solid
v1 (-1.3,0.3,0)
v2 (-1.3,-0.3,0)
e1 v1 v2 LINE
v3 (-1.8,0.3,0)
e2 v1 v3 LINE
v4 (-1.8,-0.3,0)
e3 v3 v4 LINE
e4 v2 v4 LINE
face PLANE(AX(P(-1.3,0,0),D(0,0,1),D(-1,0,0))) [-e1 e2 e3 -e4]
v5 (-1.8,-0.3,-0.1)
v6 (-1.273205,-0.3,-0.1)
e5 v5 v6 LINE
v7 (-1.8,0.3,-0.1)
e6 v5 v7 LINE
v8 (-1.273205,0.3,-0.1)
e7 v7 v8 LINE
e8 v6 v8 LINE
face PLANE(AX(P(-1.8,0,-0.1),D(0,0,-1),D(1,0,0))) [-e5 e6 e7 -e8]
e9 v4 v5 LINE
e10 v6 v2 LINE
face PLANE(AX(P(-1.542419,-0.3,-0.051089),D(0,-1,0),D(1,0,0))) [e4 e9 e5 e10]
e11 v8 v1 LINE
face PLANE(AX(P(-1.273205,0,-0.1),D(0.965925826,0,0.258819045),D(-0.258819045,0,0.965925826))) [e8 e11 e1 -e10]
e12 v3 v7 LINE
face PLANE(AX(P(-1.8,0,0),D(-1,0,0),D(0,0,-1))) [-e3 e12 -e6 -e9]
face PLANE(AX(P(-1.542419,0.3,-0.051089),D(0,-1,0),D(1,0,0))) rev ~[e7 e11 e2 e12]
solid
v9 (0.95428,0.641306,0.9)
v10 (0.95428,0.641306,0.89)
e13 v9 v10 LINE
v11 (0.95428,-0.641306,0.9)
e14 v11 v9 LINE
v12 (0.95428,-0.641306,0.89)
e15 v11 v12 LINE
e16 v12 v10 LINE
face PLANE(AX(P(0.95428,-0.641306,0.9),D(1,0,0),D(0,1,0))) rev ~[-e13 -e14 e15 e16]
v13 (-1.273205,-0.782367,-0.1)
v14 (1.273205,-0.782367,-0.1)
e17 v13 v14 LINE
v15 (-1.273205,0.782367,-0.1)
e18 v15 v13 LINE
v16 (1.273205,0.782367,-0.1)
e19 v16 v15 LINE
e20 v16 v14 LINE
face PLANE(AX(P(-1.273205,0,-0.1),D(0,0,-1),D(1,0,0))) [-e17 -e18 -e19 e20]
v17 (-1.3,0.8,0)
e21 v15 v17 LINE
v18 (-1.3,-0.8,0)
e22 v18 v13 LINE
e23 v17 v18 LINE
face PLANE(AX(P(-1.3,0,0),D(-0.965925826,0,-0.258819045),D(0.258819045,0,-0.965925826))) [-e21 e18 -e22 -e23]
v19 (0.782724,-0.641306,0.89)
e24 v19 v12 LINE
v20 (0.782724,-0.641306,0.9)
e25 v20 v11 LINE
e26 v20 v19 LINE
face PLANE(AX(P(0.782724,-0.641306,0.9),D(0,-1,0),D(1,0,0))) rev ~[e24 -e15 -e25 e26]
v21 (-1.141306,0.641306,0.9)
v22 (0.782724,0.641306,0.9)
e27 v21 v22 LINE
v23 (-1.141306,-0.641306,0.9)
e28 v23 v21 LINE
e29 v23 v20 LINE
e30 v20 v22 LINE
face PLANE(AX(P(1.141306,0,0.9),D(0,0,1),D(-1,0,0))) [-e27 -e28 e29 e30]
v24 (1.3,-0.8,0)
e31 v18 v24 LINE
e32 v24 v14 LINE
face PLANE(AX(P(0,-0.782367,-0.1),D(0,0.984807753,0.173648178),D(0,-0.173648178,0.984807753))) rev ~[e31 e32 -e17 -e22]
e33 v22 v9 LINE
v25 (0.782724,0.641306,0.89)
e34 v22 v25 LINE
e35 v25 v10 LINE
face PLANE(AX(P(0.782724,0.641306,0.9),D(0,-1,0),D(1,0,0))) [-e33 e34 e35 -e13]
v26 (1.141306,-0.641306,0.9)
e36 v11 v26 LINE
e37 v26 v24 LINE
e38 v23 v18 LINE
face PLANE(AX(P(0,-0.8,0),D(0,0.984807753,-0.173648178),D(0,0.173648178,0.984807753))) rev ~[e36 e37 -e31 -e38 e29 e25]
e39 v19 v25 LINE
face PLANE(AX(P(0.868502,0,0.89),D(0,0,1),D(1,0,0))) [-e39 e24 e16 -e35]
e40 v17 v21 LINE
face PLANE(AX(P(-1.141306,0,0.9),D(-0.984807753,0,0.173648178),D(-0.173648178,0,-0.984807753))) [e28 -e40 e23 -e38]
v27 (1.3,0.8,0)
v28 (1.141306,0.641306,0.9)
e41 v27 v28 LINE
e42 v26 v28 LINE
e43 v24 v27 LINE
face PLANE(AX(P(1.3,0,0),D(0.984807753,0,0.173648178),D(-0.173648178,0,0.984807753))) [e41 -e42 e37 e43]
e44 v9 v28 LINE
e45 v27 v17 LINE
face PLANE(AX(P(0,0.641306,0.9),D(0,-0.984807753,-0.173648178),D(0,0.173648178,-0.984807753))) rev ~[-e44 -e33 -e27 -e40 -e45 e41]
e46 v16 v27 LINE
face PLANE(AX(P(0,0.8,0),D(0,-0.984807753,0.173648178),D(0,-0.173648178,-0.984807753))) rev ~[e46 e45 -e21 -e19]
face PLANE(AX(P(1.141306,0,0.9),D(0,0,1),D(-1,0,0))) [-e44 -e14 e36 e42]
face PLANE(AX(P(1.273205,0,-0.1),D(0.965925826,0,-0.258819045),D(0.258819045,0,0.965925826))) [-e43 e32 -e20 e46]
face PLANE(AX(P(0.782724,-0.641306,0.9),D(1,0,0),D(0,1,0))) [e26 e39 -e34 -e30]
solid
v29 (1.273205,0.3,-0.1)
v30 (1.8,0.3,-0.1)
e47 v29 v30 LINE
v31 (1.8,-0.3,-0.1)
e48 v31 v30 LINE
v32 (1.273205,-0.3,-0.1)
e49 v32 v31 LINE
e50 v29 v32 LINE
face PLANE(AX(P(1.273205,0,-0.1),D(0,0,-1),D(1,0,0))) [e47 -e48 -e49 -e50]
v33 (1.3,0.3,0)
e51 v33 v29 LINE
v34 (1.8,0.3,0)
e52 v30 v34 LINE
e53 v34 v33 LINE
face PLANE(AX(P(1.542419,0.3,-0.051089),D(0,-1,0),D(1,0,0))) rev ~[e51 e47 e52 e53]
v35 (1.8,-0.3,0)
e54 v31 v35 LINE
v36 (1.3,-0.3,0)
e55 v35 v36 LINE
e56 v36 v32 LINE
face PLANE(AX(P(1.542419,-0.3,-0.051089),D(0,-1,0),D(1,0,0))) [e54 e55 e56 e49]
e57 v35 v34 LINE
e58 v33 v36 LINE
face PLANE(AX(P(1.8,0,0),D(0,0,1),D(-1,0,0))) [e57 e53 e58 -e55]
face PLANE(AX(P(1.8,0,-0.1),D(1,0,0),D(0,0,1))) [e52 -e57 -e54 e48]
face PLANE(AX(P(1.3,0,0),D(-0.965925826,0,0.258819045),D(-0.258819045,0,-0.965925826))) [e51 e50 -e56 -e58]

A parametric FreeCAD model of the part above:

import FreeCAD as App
import Part
import Sketcher

V = App.Vector
Q = App.Units.Quantity


def add_polygon(sketch, points):
    """Adds a closed chain of lines whose ends are joined by coincident constraints."""
    first, n = sketch.GeometryCount, len(points)
    for a, b in zip(points, points[1:] + points[:1]):
        sketch.addGeometry(Part.LineSegment(App.Vector(*a, 0), App.Vector(*b, 0)), False)
    for i in range(n):
        sketch.addConstraint(Sketcher.Constraint("Coincident", first + i, 2, first + (i + 1) % n, 1))

doc = App.newDocument("Part")
body = doc.addObject("PartDesign::Body", "Body")

# Sketch on XZ plane
sketch1 = body.newObject("Sketcher::SketchObject", "Sketch")
sketch1.AttachmentSupport = (doc.getObject("XZ_Plane"), [""])
sketch1.MapMode = "FlatFace"
add_polygon(sketch1, [(-1.14, 0.9), (-1.3, 0), (-1.27, -0.1), (1.27, -0.1), (1.3, 0), (1.14, 0.9)])  # lines 0-5
sketch1.addConstraint(Sketcher.Constraint("Horizontal", 2))
sketch1.addConstraint(Sketcher.Constraint("Horizontal", 5))
sketch1.addConstraint(Sketcher.Constraint("Symmetric", 0, 2, 3, 2, -1, 1))
sketch1.addConstraint(Sketcher.Constraint("PointOnObject", 0, 2, -1))
sketch1.addConstraint(Sketcher.Constraint("Equal", 1, 3))
sketch1.addConstraint(Sketcher.Constraint("Equal", 0, 4))
sketch1.addConstraint(Sketcher.Constraint("Angle", 0, Q("-100 deg")))
sketch1.addConstraint(Sketcher.Constraint("Angle", 1, Q("-75 deg")))
sketch1.addConstraint(Sketcher.Constraint("DistanceY", 2, 2, 4, 2, Q("1 mm")))
sketch1.addConstraint(Sketcher.Constraint("DistanceX", 0, 2, -1, 1, Q("1.3 mm")))
sketch1.addConstraint(Sketcher.Constraint("DistanceY", 1, 2, -1, 1, Q("0.1 mm")))
pad1 = body.newObject("PartDesign::Pad", "Pad")
pad1.Profile = sketch1
pad1.Length = 1.6
pad1.Midplane = True

# Sketch on YZ plane
sketch2 = body.newObject("Sketcher::SketchObject", "Sketch001")
sketch2.AttachmentSupport = (doc.getObject("YZ_Plane"), [""])
sketch2.MapMode = "FlatFace"
add_polygon(sketch2, [(-0.641, 0.9), (-0.8, 0.9), (-0.8, 0)])  # lines 0-2
add_polygon(sketch2, [(0.8, 0.9), (0.641, 0.9), (0.8, 0)])  # lines 3-5
add_polygon(sketch2, [(-0.782, -0.1), (-0.8, 0), (-0.8, -0.1)])  # lines 6-8
add_polygon(sketch2, [(0.8, -0.1), (0.8, 0), (0.782, -0.1)])  # lines 9-11
sketch2.addConstraint(Sketcher.Constraint("Horizontal", 0))
sketch2.addConstraint(Sketcher.Constraint("Vertical", 1))
sketch2.addConstraint(Sketcher.Constraint("Horizontal", 3))
sketch2.addConstraint(Sketcher.Constraint("Vertical", 5))
sketch2.addConstraint(Sketcher.Constraint("Vertical", 7))
sketch2.addConstraint(Sketcher.Constraint("Horizontal", 8))
sketch2.addConstraint(Sketcher.Constraint("Vertical", 9))
sketch2.addConstraint(Sketcher.Constraint("Horizontal", 11))
sketch2.addConstraint(Sketcher.Constraint("Coincident", 6, 2, 1, 2))
sketch2.addConstraint(Sketcher.Constraint("Coincident", 9, 2, 4, 2))
sketch2.addConstraint(Sketcher.Constraint("Symmetric", 1, 2, 4, 2, -1, 1))
sketch2.addConstraint(Sketcher.Constraint("Symmetric", 2, 2, 3, 2, -2))
sketch2.addConstraint(Sketcher.Constraint("Symmetric", 8, 2, 10, 2, -2))
sketch2.addConstraint(Sketcher.Constraint("PointOnObject", 1, 2, -1))
sketch2.addConstraint(Sketcher.Constraint("Parallel", 4, 6))
sketch2.addConstraint(Sketcher.Constraint("Angle", 2, Q("80 deg")))
sketch2.addConstraint(Sketcher.Constraint("DistanceY", 1, 2, 1, 1, Q("0.9 mm")))
sketch2.addConstraint(Sketcher.Constraint("DistanceY", 7, 2, 7, 1, Q("0.1 mm")))
sketch2.addConstraint(Sketcher.Constraint("DistanceX", 0, 2, -1, 1, Q("0.8 mm")))
pocket1 = body.newObject("PartDesign::Pocket", "Pocket")
pocket1.Profile = sketch2
pocket1.Type = "ThroughAll"
pocket1.Midplane = True

# Sketch on XY plane
sketch3 = body.newObject("Sketcher::SketchObject", "Sketch002")
sketch3.AttachmentSupport = (doc.getObject("XY_Plane"), [""])
sketch3.MapMode = "FlatFace"
sketch3.AttachmentOffset = App.Placement(V(0, 0, 0.9), App.Rotation())
add_polygon(sketch3, [(0.78, 0.64), (0.78, -0.64), (0.95, -0.64), (0.95, 0.64)])  # lines 0-3
sketch3.addConstraint(Sketcher.Constraint("Vertical", 0))
sketch3.addConstraint(Sketcher.Constraint("Horizontal", 1))
sketch3.addConstraint(Sketcher.Constraint("Vertical", 2))
sketch3.addConstraint(Sketcher.Constraint("Horizontal", 3))
sketch3.addConstraint(Sketcher.Constraint("DistanceY", 0, 2, 0, 1, Q("1.282611 mm")))
sketch3.addConstraint(Sketcher.Constraint("DistanceX", 1, 1, 1, 2, Q("0.171556 mm")))
sketch3.addConstraint(Sketcher.Constraint("DistanceX", -1, 1, 1, 2, Q("0.95428 mm")))
sketch3.addConstraint(Sketcher.Constraint("DistanceY", 0, 2, -1, 1, Q("0.641306 mm")))
pocket2 = body.newObject("PartDesign::Pocket", "Pocket001")
pocket2.Profile = sketch3
pocket2.Length = 0.01
body2 = doc.addObject("PartDesign::Body", "Body001")

# Sketch on XZ plane
sketch4 = body2.newObject("Sketcher::SketchObject", "Sketch003")
sketch4.AttachmentSupport = (doc.getObject("XZ_Plane001"), [""])
sketch4.MapMode = "FlatFace"
add_polygon(sketch4, [(1.8, 0), (1.3, 0), (1.27, -0.1), (1.8, -0.1)])  # lines 0-3
sketch4.addConstraint(Sketcher.Constraint("Horizontal", 0))
sketch4.addConstraint(Sketcher.Constraint("Horizontal", 2))
sketch4.addConstraint(Sketcher.Constraint("Vertical", 3))
sketch4.addConstraint(Sketcher.Constraint("PointOnObject", 0, 2, -1))
sketch4.addConstraint(Sketcher.Constraint("Angle", 1, Q("-105 deg")))
sketch4.addConstraint(Sketcher.Constraint("DistanceX", 0, 2, 0, 1, Q("0.5 mm")))
sketch4.addConstraint(Sketcher.Constraint("DistanceY", 3, 1, 3, 2, Q("0.1 mm")))
sketch4.addConstraint(Sketcher.Constraint("DistanceX", -1, 1, 0, 2, Q("1.3 mm")))
pad2 = body2.newObject("PartDesign::Pad", "Pad001")
pad2.Profile = sketch4
pad2.Length = 0.6
pad2.Midplane = True
body3 = doc.addObject("PartDesign::Body", "Body002")

# Sketch on XZ plane
sketch5 = body3.newObject("Sketcher::SketchObject", "Sketch004")
sketch5.AttachmentSupport = (doc.getObject("XZ_Plane002"), [""])
sketch5.MapMode = "FlatFace"
add_polygon(sketch5, [(-1.27, -0.1), (-1.3, 0), (-1.8, 0), (-1.8, -0.1)])  # lines 0-3
sketch5.addConstraint(Sketcher.Constraint("Horizontal", 1))
sketch5.addConstraint(Sketcher.Constraint("Vertical", 2))
sketch5.addConstraint(Sketcher.Constraint("Horizontal", 3))
sketch5.addConstraint(Sketcher.Constraint("PointOnObject", 0, 2, -1))
sketch5.addConstraint(Sketcher.Constraint("Angle", 0, Q("105 deg")))
sketch5.addConstraint(Sketcher.Constraint("DistanceX", 1, 2, 1, 1, Q("0.5 mm")))
sketch5.addConstraint(Sketcher.Constraint("DistanceY", 2, 2, 2, 1, Q("0.1 mm")))
sketch5.addConstraint(Sketcher.Constraint("DistanceX", 0, 2, -1, 1, Q("1.3 mm")))
pad3 = body3.newObject("PartDesign::Pad", "Pad002")
pad3.Profile = sketch5
pad3.Length = 0.6
pad3.Midplane = True

doc.recompute()
